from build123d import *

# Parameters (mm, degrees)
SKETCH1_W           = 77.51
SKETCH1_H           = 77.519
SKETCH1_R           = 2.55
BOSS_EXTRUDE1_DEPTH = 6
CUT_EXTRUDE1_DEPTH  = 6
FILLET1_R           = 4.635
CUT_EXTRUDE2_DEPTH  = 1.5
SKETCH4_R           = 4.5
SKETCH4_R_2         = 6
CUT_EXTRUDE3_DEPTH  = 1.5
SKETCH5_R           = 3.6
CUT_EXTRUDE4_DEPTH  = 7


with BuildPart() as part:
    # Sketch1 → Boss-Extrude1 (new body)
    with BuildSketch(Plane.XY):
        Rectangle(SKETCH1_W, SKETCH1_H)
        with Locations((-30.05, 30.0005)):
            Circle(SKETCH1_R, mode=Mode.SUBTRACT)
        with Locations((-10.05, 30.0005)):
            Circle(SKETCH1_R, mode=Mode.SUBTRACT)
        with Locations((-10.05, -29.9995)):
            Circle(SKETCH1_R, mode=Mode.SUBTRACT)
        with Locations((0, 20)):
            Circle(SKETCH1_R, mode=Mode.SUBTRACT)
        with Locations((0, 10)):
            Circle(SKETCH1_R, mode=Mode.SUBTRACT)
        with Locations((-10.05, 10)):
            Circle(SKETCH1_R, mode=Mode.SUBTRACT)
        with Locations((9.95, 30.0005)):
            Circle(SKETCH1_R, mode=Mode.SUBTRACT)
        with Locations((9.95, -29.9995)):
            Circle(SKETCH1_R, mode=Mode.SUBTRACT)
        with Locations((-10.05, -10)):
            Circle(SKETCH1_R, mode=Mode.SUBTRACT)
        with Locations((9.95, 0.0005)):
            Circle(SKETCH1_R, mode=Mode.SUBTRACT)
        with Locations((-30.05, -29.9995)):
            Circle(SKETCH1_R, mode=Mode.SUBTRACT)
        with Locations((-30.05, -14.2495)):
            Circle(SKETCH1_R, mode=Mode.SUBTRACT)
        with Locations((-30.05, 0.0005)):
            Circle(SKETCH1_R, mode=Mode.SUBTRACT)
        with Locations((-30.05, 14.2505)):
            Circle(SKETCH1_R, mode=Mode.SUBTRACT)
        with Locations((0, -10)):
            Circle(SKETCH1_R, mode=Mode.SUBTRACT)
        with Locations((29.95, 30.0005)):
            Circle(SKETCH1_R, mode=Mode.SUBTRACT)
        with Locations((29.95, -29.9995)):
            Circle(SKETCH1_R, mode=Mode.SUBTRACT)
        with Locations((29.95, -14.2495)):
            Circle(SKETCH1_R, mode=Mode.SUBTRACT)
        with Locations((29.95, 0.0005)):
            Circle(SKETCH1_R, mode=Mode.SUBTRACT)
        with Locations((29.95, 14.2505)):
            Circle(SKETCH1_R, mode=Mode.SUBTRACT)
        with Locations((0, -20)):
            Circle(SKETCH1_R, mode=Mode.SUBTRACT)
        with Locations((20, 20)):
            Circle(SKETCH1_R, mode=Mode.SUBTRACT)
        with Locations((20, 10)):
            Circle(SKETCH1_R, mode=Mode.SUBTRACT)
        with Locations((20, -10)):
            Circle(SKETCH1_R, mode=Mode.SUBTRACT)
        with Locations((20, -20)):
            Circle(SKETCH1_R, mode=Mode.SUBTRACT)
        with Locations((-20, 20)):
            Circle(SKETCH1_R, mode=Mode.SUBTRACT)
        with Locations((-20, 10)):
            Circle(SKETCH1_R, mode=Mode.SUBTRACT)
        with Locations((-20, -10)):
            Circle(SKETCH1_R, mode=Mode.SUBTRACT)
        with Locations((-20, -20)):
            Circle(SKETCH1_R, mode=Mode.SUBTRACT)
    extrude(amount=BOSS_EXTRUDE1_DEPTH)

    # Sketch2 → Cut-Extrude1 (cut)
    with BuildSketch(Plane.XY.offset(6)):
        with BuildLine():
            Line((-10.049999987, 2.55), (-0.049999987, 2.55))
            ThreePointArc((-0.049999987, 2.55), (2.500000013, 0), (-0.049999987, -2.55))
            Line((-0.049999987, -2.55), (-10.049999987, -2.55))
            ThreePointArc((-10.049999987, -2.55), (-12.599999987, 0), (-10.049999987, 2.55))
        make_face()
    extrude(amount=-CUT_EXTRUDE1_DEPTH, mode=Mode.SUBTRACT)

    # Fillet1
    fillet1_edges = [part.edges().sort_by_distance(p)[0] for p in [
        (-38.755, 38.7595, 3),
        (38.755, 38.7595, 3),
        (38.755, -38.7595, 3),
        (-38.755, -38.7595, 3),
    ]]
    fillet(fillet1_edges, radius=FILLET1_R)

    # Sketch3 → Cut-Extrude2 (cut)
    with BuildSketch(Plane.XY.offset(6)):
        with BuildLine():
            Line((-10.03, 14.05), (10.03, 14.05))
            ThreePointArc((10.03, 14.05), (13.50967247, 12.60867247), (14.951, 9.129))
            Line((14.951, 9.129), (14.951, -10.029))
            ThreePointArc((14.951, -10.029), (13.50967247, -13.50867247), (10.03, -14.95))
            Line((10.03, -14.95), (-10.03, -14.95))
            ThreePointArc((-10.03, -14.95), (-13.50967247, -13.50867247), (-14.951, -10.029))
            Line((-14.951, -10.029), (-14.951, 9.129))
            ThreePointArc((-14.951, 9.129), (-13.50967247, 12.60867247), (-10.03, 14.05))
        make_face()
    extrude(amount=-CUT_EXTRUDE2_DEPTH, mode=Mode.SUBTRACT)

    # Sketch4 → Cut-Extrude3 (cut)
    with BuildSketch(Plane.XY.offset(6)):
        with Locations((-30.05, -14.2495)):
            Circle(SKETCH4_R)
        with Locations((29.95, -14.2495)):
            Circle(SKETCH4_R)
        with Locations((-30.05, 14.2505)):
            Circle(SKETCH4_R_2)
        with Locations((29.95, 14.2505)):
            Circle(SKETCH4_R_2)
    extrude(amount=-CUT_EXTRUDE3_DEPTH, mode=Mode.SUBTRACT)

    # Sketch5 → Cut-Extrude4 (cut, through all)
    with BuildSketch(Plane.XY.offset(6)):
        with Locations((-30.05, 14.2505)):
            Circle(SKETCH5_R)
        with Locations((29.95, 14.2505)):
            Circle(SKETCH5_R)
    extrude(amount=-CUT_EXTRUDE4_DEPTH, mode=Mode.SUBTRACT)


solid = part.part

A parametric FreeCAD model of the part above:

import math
import FreeCAD as App
import Part
import Sketcher
Q = App.Units.Quantity


def edges_at(feature, points):
    """Names of the edges that pass closest to the given points."""
    edges = feature.Shape.Edges
    near = lambda p: min(range(len(edges)), key=lambda i: edges[i].distToShape(Part.Vertex(*p))[0])
    return sorted({f"Edge{near(p) + 1}" for p in points})

doc = App.newDocument("Part")
body = doc.addObject("PartDesign::Body", "Body")

# Sketch on XY plane
sketch1 = body.newObject("Sketcher::SketchObject", "Sketch")
sketch1.AttachmentSupport = (doc.getObject("XY_Plane"), [""])
sketch1.MapMode = "FlatFace"
sketch1.addGeometry(Part.LineSegment(App.Vector(-38.755, 38.7595, 0), App.Vector(-38.755, -38.7595, 0)), False)
sketch1.addGeometry(Part.LineSegment(App.Vector(-38.755, -38.7595, 0), App.Vector(38.755, -38.7595, 0)), False)
sketch1.addGeometry(Part.LineSegment(App.Vector(38.755, -38.7595, 0), App.Vector(38.755, 38.7595, 0)), False)
sketch1.addGeometry(Part.LineSegment(App.Vector(38.755, 38.7595, 0), App.Vector(-38.755, 38.7595, 0)), False)
sketch1.addGeometry(Part.Circle(App.Vector(-30.05, -29.9995, 0), App.Vector(0, 0, 1), 2.55), False)
sketch1.addGeometry(Part.Circle(App.Vector(-20, -20, 0), App.Vector(0, 0, 1), 2.55), False)
sketch1.addGeometry(Part.Circle(App.Vector(-10.05, -29.9995, 0), App.Vector(0, 0, 1), 2.55), False)
sketch1.addGeometry(Part.Circle(App.Vector(-30.05, -14.2495, 0), App.Vector(0, 0, 1), 2.55), False)
sketch1.addGeometry(Part.Circle(App.Vector(-20, -10, 0), App.Vector(0, 0, 1), 2.55), False)
sketch1.addGeometry(Part.Circle(App.Vector(-10.05, -10, 0), App.Vector(0, 0, 1), 2.55), False)
sketch1.addGeometry(Part.Circle(App.Vector(9.95, -29.9995, 0), App.Vector(0, 0, 1), 2.55), False)
sketch1.addGeometry(Part.Circle(App.Vector(0, -20, 0), App.Vector(0, 0, 1), 2.55), False)
sketch1.addGeometry(Part.Circle(App.Vector(29.95, -29.9995, 0), App.Vector(0, 0, 1), 2.55), False)
sketch1.addGeometry(Part.Circle(App.Vector(20, -20, 0), App.Vector(0, 0, 1), 2.55), False)
sketch1.addGeometry(Part.Circle(App.Vector(0, -10, 0), App.Vector(0, 0, 1), 2.55), False)
sketch1.addGeometry(Part.Circle(App.Vector(20, -10, 0), App.Vector(0, 0, 1), 2.55), False)
sketch1.addGeometry(Part.Circle(App.Vector(29.95, -14.2495, 0), App.Vector(0, 0, 1), 2.55), False)
sketch1.addGeometry(Part.Circle(App.Vector(-30.05, 0.0005, 0), App.Vector(0, 0, 1), 2.55), False)
sketch1.addGeometry(Part.Circle(App.Vector(-30.05, 14.2505, 0), App.Vector(0, 0, 1), 2.55), False)
sketch1.addGeometry(Part.Circle(App.Vector(-20, 10, 0), App.Vector(0, 0, 1), 2.55), False)
sketch1.addGeometry(Part.Circle(App.Vector(-10.05, 10, 0), App.Vector(0, 0, 1), 2.55), False)
sketch1.addGeometry(Part.Circle(App.Vector(-20, 20, 0), App.Vector(0, 0, 1), 2.55), False)
sketch1.addGeometry(Part.Circle(App.Vector(-30.05, 30.0005, 0), App.Vector(0, 0, 1), 2.55), False)
sketch1.addGeometry(Part.Circle(App.Vector(-10.05, 30.0005, 0), App.Vector(0, 0, 1), 2.55), False)
sketch1.addGeometry(Part.Circle(App.Vector(9.95, 0.0005, 0), App.Vector(0, 0, 1), 2.55), False)
sketch1.addGeometry(Part.Circle(App.Vector(0, 10, 0), App.Vector(0, 0, 1), 2.55), False)
sketch1.addGeometry(Part.Circle(App.Vector(29.95, 0.0005, 0), App.Vector(0, 0, 1), 2.55), False)
sketch1.addGeometry(Part.Circle(App.Vector(20, 10, 0), App.Vector(0, 0, 1), 2.55), False)
sketch1.addGeometry(Part.Circle(App.Vector(29.95, 14.2505, 0), App.Vector(0, 0, 1), 2.55), False)
sketch1.addGeometry(Part.Circle(App.Vector(0, 20, 0), App.Vector(0, 0, 1), 2.55), False)
sketch1.addGeometry(Part.Circle(App.Vector(9.95, 30.0005, 0), App.Vector(0, 0, 1), 2.55), False)
sketch1.addGeometry(Part.Circle(App.Vector(20, 20, 0), App.Vector(0, 0, 1), 2.55), False)
sketch1.addGeometry(Part.Circle(App.Vector(29.95, 30.0005, 0), App.Vector(0, 0, 1), 2.55), False)
sketch1.addConstraint(Sketcher.Constraint("Coincident", 0, 2, 1, 1))
sketch1.addConstraint(Sketcher.Constraint("Coincident", 1, 2, 2, 1))
sketch1.addConstraint(Sketcher.Constraint("Coincident", 2, 2, 3, 1))
sketch1.addConstraint(Sketcher.Constraint("Coincident", 3, 2, 0, 1))
sketch1.addConstraint(Sketcher.Constraint("Vertical", 0))
sketch1.addConstraint(Sketcher.Constraint("Horizontal", 1))
sketch1.addConstraint(Sketcher.Constraint("Vertical", 2))
sketch1.addConstraint(Sketcher.Constraint("Horizontal", 3))
sketch1.addConstraint(Sketcher.Constraint("Equal", 4, 5))
sketch1.addConstraint(Sketcher.Constraint("Equal", 5, 6))
sketch1.addConstraint(Sketcher.Constraint("Equal", 6, 7))
sketch1.addConstraint(Sketcher.Constraint("Equal", 7, 8))
sketch1.addConstraint(Sketcher.Constraint("Equal", 8, 9))
sketch1.addConstraint(Sketcher.Constraint("Equal", 9, 10))
sketch1.addConstraint(Sketcher.Constraint("Equal", 10, 11))
sketch1.addConstraint(Sketcher.Constraint("Equal", 11, 12))
sketch1.addConstraint(Sketcher.Constraint("Equal", 12, 13))
sketch1.addConstraint(Sketcher.Constraint("Equal", 13, 14))
sketch1.addConstraint(Sketcher.Constraint("Equal", 14, 15))
sketch1.addConstraint(Sketcher.Constraint("Equal", 15, 16))
sketch1.addConstraint(Sketcher.Constraint("Equal", 16, 17))
sketch1.addConstraint(Sketcher.Constraint("Equal", 17, 18))
sketch1.addConstraint(Sketcher.Constraint("Equal", 18, 19))
sketch1.addConstraint(Sketcher.Constraint("Equal", 19, 20))
sketch1.addConstraint(Sketcher.Constraint("Equal", 20, 21))
sketch1.addConstraint(Sketcher.Constraint("Equal", 21, 22))
sketch1.addConstraint(Sketcher.Constraint("Equal", 22, 23))
sketch1.addConstraint(Sketcher.Constraint("Equal", 23, 24))
sketch1.addConstraint(Sketcher.Constraint("Equal", 24, 25))
sketch1.addConstraint(Sketcher.Constraint("Equal", 25, 26))
sketch1.addConstraint(Sketcher.Constraint("Equal", 26, 27))
sketch1.addConstraint(Sketcher.Constraint("Equal", 27, 28))
sketch1.addConstraint(Sketcher.Constraint("Equal", 28, 29))
sketch1.addConstraint(Sketcher.Constraint("Equal", 29, 30))
sketch1.addConstraint(Sketcher.Constraint("Equal", 30, 31))
sketch1.addConstraint(Sketcher.Constraint("Equal", 31, 32))
sketch1.addConstraint(Sketcher.Constraint("Symmetric", 15, 3, 19, 3, -1, 1))
sketch1.addConstraint(Sketcher.Constraint("Symmetric", 13, 3, 21, 3, -1, 1))
sketch1.addConstraint(Sketcher.Constraint("Symmetric", 14, 3, 25, 3, -1, 1))
sketch1.addConstraint(Sketcher.Constraint("Symmetric", 8, 3, 27, 3, -1, 1))
sketch1.addConstraint(Sketcher.Constraint("Symmetric", 11, 3, 29, 3, -1, 1))
sketch1.addConstraint(Sketcher.Constraint("Symmetric", 5, 3, 31, 3, -1, 1))
sketch1.addConstraint(Sketcher.Constraint("Symmetric", 0, 2, 2, 2, -1, 1))
sketch1.addConstraint(Sketcher.Constraint("Symmetric", 5, 3, 13, 3, -2))
sketch1.addConstraint(Sketcher.Constraint("Symmetric", 8, 3, 15, 3, -2))
sketch1.addConstraint(Sketcher.Constraint("Symmetric", 9, 3, 20, 3, -1))
sketch1.addConstraint(Sketcher.Constraint("PointOnObject", 11, 3, -2))
sketch1.addConstraint(Sketcher.Constraint("PointOnObject", 14, 3, -2))
sketch1.addConstraint(Sketcher.Constraint("Horizontal", 4, 3, 6, 3))
sketch1.addConstraint(Sketcher.Constraint("Horizontal", 8, 3, 9, 3))
sketch1.addConstraint(Sketcher.Constraint("Horizontal", 6, 3, 10, 3))
sketch1.addConstraint(Sketcher.Constraint("Horizontal", 5, 3, 11, 3))
sketch1.addConstraint(Sketcher.Constraint("Horizontal", 10, 3, 12, 3))
sketch1.addConstraint(Sketcher.Constraint("Horizontal", 9, 3, 14, 3))
sketch1.addConstraint(Sketcher.Constraint("Horizontal", 7, 3, 16, 3))
sketch1.addConstraint(Sketcher.Constraint("Horizontal", 22, 3, 23, 3))
sketch1.addConstraint(Sketcher.Constraint("Horizontal", 17, 3, 24, 3))
sketch1.addConstraint(Sketcher.Constraint("Horizontal", 24, 3, 26, 3))
sketch1.addConstraint(Sketcher.Constraint("Horizontal", 18, 3, 28, 3))
sketch1.addConstraint(Sketcher.Constraint("Horizontal", 23, 3, 30, 3))
sketch1.addConstraint(Sketcher.Constraint("Horizontal", 30, 3, 32, 3))
sketch1.addConstraint(Sketcher.Constraint("Vertical", 4, 3, 7, 3))
sketch1.addConstraint(Sketcher.Constraint("Vertical", 5, 3, 8, 3))
sketch1.addConstraint(Sketcher.Constraint("Vertical", 6, 3, 9, 3))
sketch1.addConstraint(Sketcher.Constraint("Vertical", 12, 3, 16, 3))
sketch1.addConstraint(Sketcher.Constraint("Vertical", 7, 3, 17, 3))
sketch1.addConstraint(Sketcher.Constraint("Vertical", 17, 3, 18, 3))
sketch1.addConstraint(Sketcher.Constraint("Vertical", 18, 3, 22, 3))
sketch1.addConstraint(Sketcher.Constraint("Vertical", 20, 3, 23, 3))
sketch1.addConstraint(Sketcher.Constraint("Vertical", 10, 3, 24, 3))
sketch1.addConstraint(Sketcher.Constraint("Vertical", 16, 3, 26, 3))
sketch1.addConstraint(Sketcher.Constraint("Vertical", 26, 3, 28, 3))
sketch1.addConstraint(Sketcher.Constraint("Vertical", 24, 3, 30, 3))
sketch1.addConstraint(Sketcher.Constraint("Vertical", 28, 3, 32, 3))
sketch1.addConstraint(Sketcher.Constraint("Diameter", 4, Q("5.1 mm")))
sketch1.addConstraint(Sketcher.Constraint("DistanceX", 5, 3, -1, 1, Q("20 mm")))
sketch1.addConstraint(Sketcher.Constraint("DistanceY", 5, 3, -1, 1, Q("20 mm")))
sketch1.addConstraint(Sketcher.Constraint("DistanceY", 8, 3, -1, 1, Q("10 mm")))
sketch1.addConstraint(Sketcher.Constraint("DistanceX", 4, 3, 6, 3, Q("20 mm")))
sketch1.addConstraint(Sketcher.Constraint("DistanceX", 6, 3, 10, 3, Q("20 mm")))
sketch1.addConstraint(Sketcher.Constraint("DistanceX", 10, 3, 12, 3, Q("20 mm")))
sketch1.addConstraint(Sketcher.Constraint("DistanceY", 4, 3, 17, 3, Q("30 mm")))
sketch1.addConstraint(Sketcher.Constraint("DistanceY", 17, 3, 22, 3, Q("30 mm")))
sketch1.addConstraint(Sketcher.Constraint("DistanceX", 1, 1, 1, 2, Q("77.51 mm")))
sketch1.addConstraint(Sketcher.Constraint("DistanceY", 7, 3, 18, 3, Q("28.5 mm")))
sketch1.addConstraint(Sketcher.Constraint("DistanceY", 0, 2, 0, 1, Q("77.519 mm")))
sketch1.addConstraint(Sketcher.Constraint("DistanceX", 4, 3, -1, 1, Q("30.05 mm")))
sketch1.addConstraint(Sketcher.Constraint("DistanceY", 4, 3, 7, 3, Q("15.75 mm")))
sketch1.addConstraint(Sketcher.Constraint("DistanceY", 0, 2, 4, 3, Q("8.76 mm")))
pad1 = body.newObject("PartDesign::Pad", "Pad")
pad1.Profile = sketch1
pad1.Length = 6

# Sketch on XY plane
sketch2 = body.newObject("Sketcher::SketchObject", "Sketch001")
sketch2.AttachmentSupport = (doc.getObject("XY_Plane"), [""])
sketch2.MapMode = "FlatFace"
sketch2.AttachmentOffset = App.Placement(App.Vector(0, 0, 6), App.Rotation())
sketch2.addGeometry(Part.LineSegment(App.Vector(-0.05, 2.55, 0), App.Vector(-10.05, 2.55, 0)), False)
sketch2.addGeometry(Part.ArcOfCircle(Part.Circle(App.Vector(-10.05, 0, 0), App.Vector(0, 0, 1), 2.55), math.radians(90), math.radians(270)), False)
sketch2.addGeometry(Part.LineSegment(App.Vector(-10.05, -2.55, 0), App.Vector(-0.05, -2.55, 0)), False)
sketch2.addGeometry(Part.ArcOfCircle(Part.Circle(App.Vector(-0.05, 0, 0), App.Vector(0, 0, 1), 2.55), math.radians(-90), math.radians(90)), False)
sketch2.addConstraint(Sketcher.Constraint("Tangent", 0, 2, 1, 1))
sketch2.addConstraint(Sketcher.Constraint("Tangent", 1, 2, 2, 1))
sketch2.addConstraint(Sketcher.Constraint("Tangent", 2, 2, 3, 1))
sketch2.addConstraint(Sketcher.Constraint("Tangent", 3, 2, 0, 1))
sketch2.addConstraint(Sketcher.Constraint("Horizontal", 0))
sketch2.addConstraint(Sketcher.Constraint("Horizontal", 2))
sketch2.addConstraint(Sketcher.Constraint("PointOnObject", 1, 3, -1))
sketch2.addConstraint(Sketcher.Constraint("DistanceX", 0, 2, 0, 1, Q("10 mm")))
sketch2.addConstraint(Sketcher.Constraint("Radius", 1, Q("2.55 mm")))
sketch2.addConstraint(Sketcher.Constraint("DistanceX", 1, 3, -1, 1, Q("10.05 mm")))
pocket1 = body.newObject("PartDesign::Pocket", "Pocket")
pocket1.Profile = sketch2
pocket1.Length = 6
doc.recompute()

fillet = body.newObject("PartDesign::Fillet", "Fillet")
fillet.Base = (pocket1, edges_at(pocket1, [
    (-38.755, 38.76, 3),
    (38.755, 38.76, 3),
    (38.755, -38.76, 3),
    (-38.755, -38.76, 3),
]))
fillet.Radius = 4.635

# Sketch on XY plane
sketch3 = body.newObject("Sketcher::SketchObject", "Sketch002")
sketch3.AttachmentSupport = (doc.getObject("XY_Plane"), [""])
sketch3.MapMode = "FlatFace"
sketch3.AttachmentOffset = App.Placement(App.Vector(0, 0, 6), App.Rotation())
sketch3.addGeometry(Part.LineSegment(App.Vector(10.03, 14.05, 0), App.Vector(-10.03, 14.05, 0)), False)
sketch3.addGeometry(Part.ArcOfCircle(Part.Circle(App.Vector(-10.03, 9.129, 0), App.Vector(0, 0, 1), 4.921), math.radians(90), math.radians(180)), False)
sketch3.addGeometry(Part.LineSegment(App.Vector(-14.951, 9.129, 0), App.Vector(-14.951, -10.029, 0)), False)
sketch3.addGeometry(Part.ArcOfCircle(Part.Circle(App.Vector(-10.03, -10.029, 0), App.Vector(0, 0, 1), 4.921), math.radians(-180), math.radians(-90)), False)
sketch3.addGeometry(Part.LineSegment(App.Vector(-10.03, -14.95, 0), App.Vector(10.03, -14.95, 0)), False)
sketch3.addGeometry(Part.ArcOfCircle(Part.Circle(App.Vector(10.03, -10.029, 0), App.Vector(0, 0, 1), 4.921), math.radians(-90), math.radians(0)), False)
sketch3.addGeometry(Part.LineSegment(App.Vector(14.951, -10.029, 0), App.Vector(14.951, 9.129, 0)), False)
sketch3.addGeometry(Part.ArcOfCircle(Part.Circle(App.Vector(10.03, 9.129, 0), App.Vector(0, 0, 1), 4.921), math.radians(0), math.radians(90)), False)
sketch3.addConstraint(Sketcher.Constraint("Tangent", 0, 2, 1, 1))
sketch3.addConstraint(Sketcher.Constraint("Tangent", 1, 2, 2, 1))
sketch3.addConstraint(Sketcher.Constraint("Tangent", 2, 2, 3, 1))
sketch3.addConstraint(Sketcher.Constraint("Tangent", 3, 2, 4, 1))
sketch3.addConstraint(Sketcher.Constraint("Tangent", 4, 2, 5, 1))
sketch3.addConstraint(Sketcher.Constraint("Tangent", 5, 2, 6, 1))
sketch3.addConstraint(Sketcher.Constraint("Tangent", 6, 2, 7, 1))
sketch3.addConstraint(Sketcher.Constraint("Tangent", 7, 2, 0, 1))
sketch3.addConstraint(Sketcher.Constraint("Horizontal", 0))
sketch3.addConstraint(Sketcher.Constraint("Vertical", 2))
sketch3.addConstraint(Sketcher.Constraint("Horizontal", 4))
sketch3.addConstraint(Sketcher.Constraint("Vertical", 6))
sketch3.addConstraint(Sketcher.Constraint("Equal", 1, 3))
sketch3.addConstraint(Sketcher.Constraint("Equal", 3, 5))
sketch3.addConstraint(Sketcher.Constraint("Equal", 5, 7))
sketch3.addConstraint(Sketcher.Constraint("Radius", 1, Q("4.921 mm")))
sketch3.addConstraint(Sketcher.Constraint("DistanceX", 0, 2, 0, 1, Q("20.06 mm")))
sketch3.addConstraint(Sketcher.Constraint("DistanceY", 2, 2, 2, 1, Q("19.158 mm")))
sketch3.addConstraint(Sketcher.Constraint("DistanceX", 1, 3, -1, 1, Q("10.03 mm")))
sketch3.addConstraint(Sketcher.Constraint("DistanceY", -1, 1, 0, 2, Q("14.05 mm")))
pocket2 = body.newObject("PartDesign::Pocket", "Pocket001")
pocket2.Profile = sketch3
pocket2.Length = 1.5

# Sketch on XY plane
sketch4 = body.newObject("Sketcher::SketchObject", "Sketch003")
sketch4.AttachmentSupport = (doc.getObject("XY_Plane"), [""])
sketch4.MapMode = "FlatFace"
sketch4.AttachmentOffset = App.Placement(App.Vector(0, 0, 6), App.Rotation())
sketch4.addGeometry(Part.Circle(App.Vector(-30.05, -14.2495, 0), App.Vector(0, 0, 1), 4.5), False)
sketch4.addGeometry(Part.Circle(App.Vector(29.95, -14.2495, 0), App.Vector(0, 0, 1), 4.5), False)
sketch4.addGeometry(Part.Circle(App.Vector(-30.05, 14.2505, 0), App.Vector(0, 0, 1), 6), False)
sketch4.addGeometry(Part.Circle(App.Vector(29.95, 14.2505, 0), App.Vector(0, 0, 1), 6), False)
sketch4.addConstraint(Sketcher.Constraint("Equal", 0, 1))
sketch4.addConstraint(Sketcher.Constraint("Equal", 2, 3))
sketch4.addConstraint(Sketcher.Constraint("Horizontal", 0, 3, 1, 3))
sketch4.addConstraint(Sketcher.Constraint("Horizontal", 2, 3, 3, 3))
sketch4.addConstraint(Sketcher.Constraint("Vertical", 0, 3, 2, 3))
sketch4.addConstraint(Sketcher.Constraint("Vertical", 1, 3, 3, 3))
sketch4.addConstraint(Sketcher.Constraint("Diameter", 0, Q("9 mm")))
sketch4.addConstraint(Sketcher.Constraint("Diameter", 2, Q("12 mm")))
sketch4.addConstraint(Sketcher.Constraint("DistanceX", 0, 3, 1, 3, Q("60 mm")))
sketch4.addConstraint(Sketcher.Constraint("DistanceY", 0, 3, 2, 3, Q("28.5 mm")))
sketch4.addConstraint(Sketcher.Constraint("DistanceX", 0, 3, -1, 1, Q("30.05 mm")))
sketch4.addConstraint(Sketcher.Constraint("DistanceY", 0, 3, -1, 1, Q("14.2495 mm")))
pocket3 = body.newObject("PartDesign::Pocket", "Pocket002")
pocket3.Profile = sketch4
pocket3.Length = 1.5

# Sketch on XY plane
sketch5 = body.newObject("Sketcher::SketchObject", "Sketch004")
sketch5.AttachmentSupport = (doc.getObject("XY_Plane"), [""])
sketch5.MapMode = "FlatFace"
sketch5.AttachmentOffset = App.Placement(App.Vector(0, 0, 6), App.Rotation())
sketch5.addGeometry(Part.Circle(App.Vector(-30.05, 14.2505, 0), App.Vector(0, 0, 1), 3.6), False)
sketch5.addGeometry(Part.Circle(App.Vector(29.95, 14.2505, 0), App.Vector(0, 0, 1), 3.6), False)
sketch5.addConstraint(Sketcher.Constraint("Equal", 0, 1))
sketch5.addConstraint(Sketcher.Constraint("Horizontal", 0, 3, 1, 3))
sketch5.addConstraint(Sketcher.Constraint("Diameter", 0, Q("7.2 mm")))
sketch5.addConstraint(Sketcher.Constraint("DistanceX", 0, 3, 1, 3, Q("60 mm")))
sketch5.addConstraint(Sketcher.Constraint("DistanceX", 0, 3, -1, 1, Q("30.05 mm")))
sketch5.addConstraint(Sketcher.Constraint("DistanceY", -1, 1, 0, 3, Q("14.2505 mm")))
pocket4 = body.newObject("PartDesign::Pocket", "Pocket003")
pocket4.Profile = sketch5
pocket4.Type = "ThroughAll"

doc.recompute()
